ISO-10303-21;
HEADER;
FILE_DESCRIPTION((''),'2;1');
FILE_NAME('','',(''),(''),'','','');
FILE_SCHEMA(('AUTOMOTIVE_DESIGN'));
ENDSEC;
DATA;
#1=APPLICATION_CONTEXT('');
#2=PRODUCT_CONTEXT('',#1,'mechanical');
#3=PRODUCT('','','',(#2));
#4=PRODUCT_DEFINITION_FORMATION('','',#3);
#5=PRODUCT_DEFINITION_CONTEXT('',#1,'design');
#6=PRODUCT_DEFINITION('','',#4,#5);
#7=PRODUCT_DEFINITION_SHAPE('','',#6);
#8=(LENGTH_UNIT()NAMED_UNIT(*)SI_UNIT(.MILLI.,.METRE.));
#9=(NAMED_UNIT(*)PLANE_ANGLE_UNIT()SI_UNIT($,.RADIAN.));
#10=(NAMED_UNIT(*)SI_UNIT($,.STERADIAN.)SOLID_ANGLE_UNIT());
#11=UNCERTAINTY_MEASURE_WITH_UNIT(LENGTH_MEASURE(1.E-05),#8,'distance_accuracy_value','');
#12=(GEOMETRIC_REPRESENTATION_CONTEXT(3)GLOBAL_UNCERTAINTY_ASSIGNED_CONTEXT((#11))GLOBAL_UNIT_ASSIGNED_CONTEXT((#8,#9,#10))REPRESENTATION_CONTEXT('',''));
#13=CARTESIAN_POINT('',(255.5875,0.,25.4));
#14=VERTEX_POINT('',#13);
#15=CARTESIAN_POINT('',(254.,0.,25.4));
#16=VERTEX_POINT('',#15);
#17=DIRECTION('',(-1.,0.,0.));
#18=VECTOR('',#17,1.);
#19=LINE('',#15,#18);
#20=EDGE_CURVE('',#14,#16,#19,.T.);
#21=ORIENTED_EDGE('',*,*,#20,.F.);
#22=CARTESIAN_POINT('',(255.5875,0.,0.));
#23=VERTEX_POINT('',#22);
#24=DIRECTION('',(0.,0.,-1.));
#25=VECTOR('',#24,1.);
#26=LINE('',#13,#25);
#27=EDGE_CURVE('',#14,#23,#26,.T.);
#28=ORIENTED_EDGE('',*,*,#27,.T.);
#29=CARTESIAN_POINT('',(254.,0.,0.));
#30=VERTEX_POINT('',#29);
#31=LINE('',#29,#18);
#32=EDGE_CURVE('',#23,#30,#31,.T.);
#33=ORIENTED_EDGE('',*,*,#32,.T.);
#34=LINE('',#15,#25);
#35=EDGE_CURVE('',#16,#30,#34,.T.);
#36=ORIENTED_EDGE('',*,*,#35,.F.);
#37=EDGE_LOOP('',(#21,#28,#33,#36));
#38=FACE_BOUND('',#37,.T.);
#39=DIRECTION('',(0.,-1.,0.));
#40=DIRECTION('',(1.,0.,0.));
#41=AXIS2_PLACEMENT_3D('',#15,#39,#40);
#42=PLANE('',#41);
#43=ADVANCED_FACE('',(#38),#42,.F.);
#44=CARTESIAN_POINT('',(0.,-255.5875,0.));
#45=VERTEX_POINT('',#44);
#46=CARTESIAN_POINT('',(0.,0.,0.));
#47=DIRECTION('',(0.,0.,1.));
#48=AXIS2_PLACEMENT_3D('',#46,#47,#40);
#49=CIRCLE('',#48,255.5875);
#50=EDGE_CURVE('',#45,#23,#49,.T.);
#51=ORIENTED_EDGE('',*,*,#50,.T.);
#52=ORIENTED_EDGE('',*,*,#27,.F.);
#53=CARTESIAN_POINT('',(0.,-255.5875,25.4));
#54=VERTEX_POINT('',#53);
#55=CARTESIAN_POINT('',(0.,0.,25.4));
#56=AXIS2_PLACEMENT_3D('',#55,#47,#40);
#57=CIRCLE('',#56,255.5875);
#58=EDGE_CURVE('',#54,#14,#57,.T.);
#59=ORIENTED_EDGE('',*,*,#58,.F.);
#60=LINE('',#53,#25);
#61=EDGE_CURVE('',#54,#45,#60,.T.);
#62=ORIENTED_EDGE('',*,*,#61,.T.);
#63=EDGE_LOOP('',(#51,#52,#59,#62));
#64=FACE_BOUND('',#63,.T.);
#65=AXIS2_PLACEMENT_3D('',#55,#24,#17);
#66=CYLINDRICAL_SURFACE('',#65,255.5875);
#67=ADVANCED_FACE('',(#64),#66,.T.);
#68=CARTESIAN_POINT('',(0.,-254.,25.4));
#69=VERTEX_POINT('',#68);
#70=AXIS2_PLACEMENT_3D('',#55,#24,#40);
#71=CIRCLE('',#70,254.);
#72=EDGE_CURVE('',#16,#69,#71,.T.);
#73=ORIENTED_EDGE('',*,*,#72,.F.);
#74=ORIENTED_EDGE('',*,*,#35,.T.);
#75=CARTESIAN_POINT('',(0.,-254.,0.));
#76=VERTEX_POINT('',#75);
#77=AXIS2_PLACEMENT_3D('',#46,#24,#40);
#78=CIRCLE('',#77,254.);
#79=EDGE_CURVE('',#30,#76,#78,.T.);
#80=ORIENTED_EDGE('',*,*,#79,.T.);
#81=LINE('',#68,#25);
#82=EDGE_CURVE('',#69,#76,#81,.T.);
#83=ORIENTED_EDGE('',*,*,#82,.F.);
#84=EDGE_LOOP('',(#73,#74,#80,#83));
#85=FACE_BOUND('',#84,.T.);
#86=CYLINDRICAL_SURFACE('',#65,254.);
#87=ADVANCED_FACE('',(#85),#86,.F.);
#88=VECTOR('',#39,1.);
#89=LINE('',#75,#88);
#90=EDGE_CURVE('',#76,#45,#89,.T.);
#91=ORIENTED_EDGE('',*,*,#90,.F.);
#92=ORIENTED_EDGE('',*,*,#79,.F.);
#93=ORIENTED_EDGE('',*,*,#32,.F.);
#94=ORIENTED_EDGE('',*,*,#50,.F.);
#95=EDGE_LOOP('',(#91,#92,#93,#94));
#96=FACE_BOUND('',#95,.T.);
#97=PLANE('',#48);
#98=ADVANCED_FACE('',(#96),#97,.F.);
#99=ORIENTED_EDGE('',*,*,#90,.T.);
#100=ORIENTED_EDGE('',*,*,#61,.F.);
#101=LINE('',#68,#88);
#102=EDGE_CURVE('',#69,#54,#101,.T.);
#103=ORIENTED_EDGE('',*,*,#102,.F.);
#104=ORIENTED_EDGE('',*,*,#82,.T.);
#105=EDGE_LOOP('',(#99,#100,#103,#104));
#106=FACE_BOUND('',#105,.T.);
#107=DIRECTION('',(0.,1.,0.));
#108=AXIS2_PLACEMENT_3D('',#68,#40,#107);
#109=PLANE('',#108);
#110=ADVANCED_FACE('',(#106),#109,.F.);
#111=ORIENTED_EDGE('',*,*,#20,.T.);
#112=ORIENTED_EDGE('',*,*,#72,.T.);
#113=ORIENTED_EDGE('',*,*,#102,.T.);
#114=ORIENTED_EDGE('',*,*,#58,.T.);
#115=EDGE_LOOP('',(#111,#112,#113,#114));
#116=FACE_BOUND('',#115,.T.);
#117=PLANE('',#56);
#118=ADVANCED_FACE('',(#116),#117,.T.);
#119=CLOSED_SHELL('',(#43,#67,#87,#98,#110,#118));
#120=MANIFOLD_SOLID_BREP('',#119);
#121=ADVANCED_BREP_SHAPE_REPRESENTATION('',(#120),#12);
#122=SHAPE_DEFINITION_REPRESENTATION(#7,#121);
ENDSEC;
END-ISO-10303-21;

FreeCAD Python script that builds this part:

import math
import FreeCAD as App
import Part
import Sketcher

V = App.Vector
Q = App.Units.Quantity

doc = App.newDocument("Part")
params = doc.addObject("Spreadsheet::Sheet", "Params")
for row, (alias, value) in enumerate([
    ("sketch1_radius", "10 in"),
    ("sketch1_radius2", "10.0625 in"),
    ("pad1_length", "1 in"),
], start=1):
    params.set(f"A{row}", alias)
    params.set(f"B{row}", "=" + value)
    params.setAlias(f"B{row}", alias)

body = doc.addObject("PartDesign::Body", "Body")

sketch1 = body.newObject("Sketcher::SketchObject", "Sketch")
sketch1.AttachmentSupport = (doc.getObject("XY_Plane"), [""])
sketch1.MapMode = "FlatFace"
sketch1.addGeometry(Part.LineSegment(V(0, -254, 0), V(0, -255.6, 0)), False)
sketch1.addGeometry(Part.ArcOfCircle(Part.Circle(V(0, 0, 0), V(0, 0, 1), 255.6), math.radians(-90), math.radians(0)), False)
sketch1.addGeometry(Part.LineSegment(V(255.6, 0, 0), V(254, 0, 0)), False)
sketch1.addGeometry(Part.ArcOfCircle(Part.Circle(V(0, 0, 0), V(0, 0, 1), 254), math.radians(-90), math.radians(0)), False)
sketch1.addConstraint(Sketcher.Constraint("Coincident", 0, 2, 1, 1))
sketch1.addConstraint(Sketcher.Constraint("Coincident", 1, 2, 2, 1))
sketch1.addConstraint(Sketcher.Constraint("Coincident", 2, 2, 3, 2))
sketch1.addConstraint(Sketcher.Constraint("Coincident", 3, 1, 0, 1))
sketch1.addConstraint(Sketcher.Constraint("Vertical", 0))
sketch1.addConstraint(Sketcher.Constraint("Horizontal", 2))
sketch1.addConstraint(Sketcher.Constraint("Coincident", 1, 3, -1, 1))
sketch1.addConstraint(Sketcher.Constraint("Coincident", 3, 3, -1, 1))
sketch1.addConstraint(Sketcher.Constraint("PointOnObject", 0, 2, -2))
sketch1.addConstraint(Sketcher.Constraint("PointOnObject", 1, 2, -1))
sketch1.addConstraint(Sketcher.Constraint("Radius", 3, Q("10 in")))
sketch1.addConstraint(Sketcher.Constraint("Radius", 1, Q("10.0625 in")))
sketch1.setExpression("Constraints[10]", "Params.sketch1_radius")
sketch1.setExpression("Constraints[11]", "Params.sketch1_radius2")
pad1 = body.newObject("PartDesign::Pad", "Pad")
pad1.Profile = sketch1
pad1.setExpression("Length", "Params.pad1_length")

doc.recompute()
